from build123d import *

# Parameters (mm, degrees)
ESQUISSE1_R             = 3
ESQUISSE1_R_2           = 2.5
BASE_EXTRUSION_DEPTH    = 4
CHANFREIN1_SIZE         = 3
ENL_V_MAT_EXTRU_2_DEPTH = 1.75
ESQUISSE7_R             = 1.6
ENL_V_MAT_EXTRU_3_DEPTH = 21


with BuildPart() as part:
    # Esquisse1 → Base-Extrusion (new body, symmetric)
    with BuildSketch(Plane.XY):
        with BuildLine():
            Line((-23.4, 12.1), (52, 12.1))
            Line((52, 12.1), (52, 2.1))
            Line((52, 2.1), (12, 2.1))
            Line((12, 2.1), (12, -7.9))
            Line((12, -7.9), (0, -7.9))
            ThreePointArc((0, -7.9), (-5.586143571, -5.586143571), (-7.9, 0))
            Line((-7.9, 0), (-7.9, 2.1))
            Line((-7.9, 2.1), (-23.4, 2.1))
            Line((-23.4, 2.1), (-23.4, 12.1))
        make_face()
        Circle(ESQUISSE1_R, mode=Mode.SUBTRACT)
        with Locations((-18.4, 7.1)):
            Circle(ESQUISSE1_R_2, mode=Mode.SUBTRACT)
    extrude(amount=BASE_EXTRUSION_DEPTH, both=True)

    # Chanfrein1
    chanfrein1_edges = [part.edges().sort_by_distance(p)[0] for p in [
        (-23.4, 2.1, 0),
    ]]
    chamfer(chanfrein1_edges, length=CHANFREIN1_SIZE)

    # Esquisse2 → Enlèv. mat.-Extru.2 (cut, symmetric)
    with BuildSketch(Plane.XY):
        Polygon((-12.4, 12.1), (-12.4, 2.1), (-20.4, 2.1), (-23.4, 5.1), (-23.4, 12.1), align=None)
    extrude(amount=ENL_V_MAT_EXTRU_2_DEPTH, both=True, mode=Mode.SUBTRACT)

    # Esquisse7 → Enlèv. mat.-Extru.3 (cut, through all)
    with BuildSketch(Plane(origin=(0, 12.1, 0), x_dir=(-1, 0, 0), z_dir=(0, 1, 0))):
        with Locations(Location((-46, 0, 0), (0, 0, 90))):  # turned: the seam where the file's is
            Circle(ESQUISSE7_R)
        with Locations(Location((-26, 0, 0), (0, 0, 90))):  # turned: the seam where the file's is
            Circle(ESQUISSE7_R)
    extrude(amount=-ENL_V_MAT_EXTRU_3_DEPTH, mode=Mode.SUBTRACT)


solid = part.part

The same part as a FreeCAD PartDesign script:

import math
import FreeCAD as App
import Part
import Sketcher
Q = App.Units.Quantity


def edges_at(feature, points):
    """Names of the edges that pass closest to the given points."""
    edges = feature.Shape.Edges
    near = lambda p: min(range(len(edges)), key=lambda i: edges[i].distToShape(Part.Vertex(*p))[0])
    return sorted({f"Edge{near(p) + 1}" for p in points})

doc = App.newDocument("Part")
body = doc.addObject("PartDesign::Body", "Body")

# Sketch on XY plane
sketch1 = body.newObject("Sketcher::SketchObject", "Sketch")
sketch1.AttachmentSupport = (doc.getObject("XY_Plane"), [""])
sketch1.MapMode = "FlatFace"
sketch1.addGeometry([
    Part.LineSegment(App.Vector(52, 12.1, 0), App.Vector(-23.4, 12.1, 0)),  # 0
    Part.LineSegment(App.Vector(-23.4, 12.1, 0), App.Vector(-23.4, 2.1, 0)),  # 1
    Part.LineSegment(App.Vector(-23.4, 2.1, 0), App.Vector(-7.9, 2.1, 0)),  # 2
    Part.LineSegment(App.Vector(-7.9, 2.1, 0), App.Vector(-7.9, 0, 0)),  # 3
    Part.ArcOfCircle(Part.Circle(App.Vector(0, 0, 0), App.Vector(0, 0, 1), 7.9), math.radians(-180), math.radians(-90)),  # 4
    Part.LineSegment(App.Vector(0, -7.9, 0), App.Vector(12, -7.9, 0)),  # 5
    Part.LineSegment(App.Vector(12, -7.9, 0), App.Vector(12, 2.1, 0)),  # 6
    Part.LineSegment(App.Vector(12, 2.1, 0), App.Vector(52, 2.1, 0)),  # 7
    Part.LineSegment(App.Vector(52, 2.1, 0), App.Vector(52, 12.1, 0)),  # 8
    Part.Circle(App.Vector(0, 0, 0), App.Vector(0, 0, 1), 3),  # 9
    Part.Circle(App.Vector(-18.4, 7.1, 0), App.Vector(0, 0, 1), 2.5),  # 10
], False)
sketch1.addConstraint([
    Sketcher.Constraint("Coincident", 0, 2, 1, 1),
    Sketcher.Constraint("Coincident", 1, 2, 2, 1),
    Sketcher.Constraint("Coincident", 2, 2, 3, 1),
    Sketcher.Constraint("Tangent", 3, 2, 4, 1),
    Sketcher.Constraint("Tangent", 4, 2, 5, 1),
    Sketcher.Constraint("Coincident", 5, 2, 6, 1),
    Sketcher.Constraint("Coincident", 6, 2, 7, 1),
    Sketcher.Constraint("Coincident", 7, 2, 8, 1),
    Sketcher.Constraint("Coincident", 8, 2, 0, 1),
    Sketcher.Constraint("Horizontal", 0),
    Sketcher.Constraint("Vertical", 1),
    Sketcher.Constraint("Horizontal", 2),
    Sketcher.Constraint("Vertical", 3),
    Sketcher.Constraint("Horizontal", 5),
    Sketcher.Constraint("Vertical", 6),
    Sketcher.Constraint("Horizontal", 7),
    Sketcher.Constraint("Vertical", 8),
    Sketcher.Constraint("Coincident", 4, 3, -1, 1),
    Sketcher.Constraint("Coincident", 9, 3, -1, 1),
    Sketcher.Constraint("Horizontal", 2, 2, 6, 2),
    Sketcher.Constraint("Equal", 1, 6),
    Sketcher.Constraint("Diameter", 9, Q("6 mm")),
    Sketcher.Constraint("Diameter", 10, Q("5 mm")),
    Sketcher.Constraint("Radius", 4, Q("7.9 mm")),
    Sketcher.Constraint("DistanceX", 5, 1, 5, 2, Q("12 mm")),
    Sketcher.Constraint("DistanceX", 7, 1, 7, 2, Q("40 mm")),
    Sketcher.Constraint("DistanceY", 1, 2, 1, 1, Q("10 mm")),
    Sketcher.Constraint("DistanceX", 0, 2, 0, 1, Q("75.4 mm")),
    Sketcher.Constraint("DistanceX", 0, 2, 10, 3, Q("5 mm")),
    Sketcher.Constraint("DistanceY", 10, 3, 0, 2, Q("5 mm")),
])
pad1 = body.newObject("PartDesign::Pad", "Pad")
pad1.Profile = sketch1
pad1.Length = 8
pad1.Midplane = True
doc.recompute()

chamfer = body.newObject("PartDesign::Chamfer", "Chamfer")
chamfer.Base = (pad1, edges_at(pad1, [(-23.4, 2.1, 0)]))
chamfer.Size = 3

# Sketch on XY plane
sketch2 = body.newObject("Sketcher::SketchObject", "Sketch001")
sketch2.AttachmentSupport = (doc.getObject("XY_Plane"), [""])
sketch2.MapMode = "FlatFace"
sketch2.addGeometry([
    Part.LineSegment(App.Vector(-12.4, 2.1, 0), App.Vector(-12.4, 12.1, 0)),  # 0
    Part.LineSegment(App.Vector(-12.4, 12.1, 0), App.Vector(-23.4, 12.1, 0)),  # 1
    Part.LineSegment(App.Vector(-23.4, 12.1, 0), App.Vector(-23.4, 5.1, 0)),  # 2
    Part.LineSegment(App.Vector(-23.4, 5.1, 0), App.Vector(-20.4, 2.1, 0)),  # 3
    Part.LineSegment(App.Vector(-20.4, 2.1, 0), App.Vector(-12.4, 2.1, 0)),  # 4
], False)
sketch2.addConstraint([
    Sketcher.Constraint("Coincident", 0, 2, 1, 1),
    Sketcher.Constraint("Coincident", 1, 2, 2, 1),
    Sketcher.Constraint("Coincident", 2, 2, 3, 1),
    Sketcher.Constraint("Coincident", 3, 2, 4, 1),
    Sketcher.Constraint("Coincident", 4, 2, 0, 1),
    Sketcher.Constraint("Vertical", 0),
    Sketcher.Constraint("Horizontal", 1),
    Sketcher.Constraint("Vertical", 2),
    Sketcher.Constraint("Horizontal", 4),
    Sketcher.Constraint("DistanceX", 1, 2, 1, 1, Q("11 mm")),
    Sketcher.Constraint("DistanceX", 4, 1, 4, 2, Q("8 mm")),
    Sketcher.Constraint("DistanceY", 0, 1, 0, 2, Q("10 mm")),
    Sketcher.Constraint("DistanceY", 2, 2, 2, 1, Q("7 mm")),
    Sketcher.Constraint("DistanceX", 0, 2, -1, 1, Q("12.4 mm")),
    Sketcher.Constraint("DistanceY", -1, 1, 0, 2, Q("12.1 mm")),
])
pocket1 = body.newObject("PartDesign::Pocket", "Pocket")
pocket1.Profile = sketch2
pocket1.Length = 3.5
pocket1.Midplane = True

# Sketch on XZ plane
sketch3 = body.newObject("Sketcher::SketchObject", "Sketch002")
sketch3.AttachmentSupport = (doc.getObject("XZ_Plane"), [""])
sketch3.MapMode = "FlatFace"
sketch3.AttachmentOffset = App.Placement(App.Vector(0, 0, -12.1), App.Rotation())
sketch3.addGeometry([
    Part.Circle(App.Vector(46, 0, 0), App.Vector(0, 0, 1), 1.6),
    Part.Circle(App.Vector(26, 0, 0), App.Vector(0, 0, 1), 1.6),
], False)
sketch3.addConstraint([
    Sketcher.Constraint("Equal", 0, 1),
    Sketcher.Constraint("PointOnObject", 0, 3, -1),
    Sketcher.Constraint("PointOnObject", 1, 3, -1),
    Sketcher.Constraint("Diameter", 0, Q("3.2 mm")),
    Sketcher.Constraint("DistanceX", -1, 1, 0, 3, Q("46 mm")),
    Sketcher.Constraint("DistanceX", -1, 1, 1, 3, Q("26 mm")),
])
pocket2 = body.newObject("PartDesign::Pocket", "Pocket001")
pocket2.Profile = sketch3
pocket2.Type = "ThroughAll"
pocket2.Reversed = True

doc.recompute()
